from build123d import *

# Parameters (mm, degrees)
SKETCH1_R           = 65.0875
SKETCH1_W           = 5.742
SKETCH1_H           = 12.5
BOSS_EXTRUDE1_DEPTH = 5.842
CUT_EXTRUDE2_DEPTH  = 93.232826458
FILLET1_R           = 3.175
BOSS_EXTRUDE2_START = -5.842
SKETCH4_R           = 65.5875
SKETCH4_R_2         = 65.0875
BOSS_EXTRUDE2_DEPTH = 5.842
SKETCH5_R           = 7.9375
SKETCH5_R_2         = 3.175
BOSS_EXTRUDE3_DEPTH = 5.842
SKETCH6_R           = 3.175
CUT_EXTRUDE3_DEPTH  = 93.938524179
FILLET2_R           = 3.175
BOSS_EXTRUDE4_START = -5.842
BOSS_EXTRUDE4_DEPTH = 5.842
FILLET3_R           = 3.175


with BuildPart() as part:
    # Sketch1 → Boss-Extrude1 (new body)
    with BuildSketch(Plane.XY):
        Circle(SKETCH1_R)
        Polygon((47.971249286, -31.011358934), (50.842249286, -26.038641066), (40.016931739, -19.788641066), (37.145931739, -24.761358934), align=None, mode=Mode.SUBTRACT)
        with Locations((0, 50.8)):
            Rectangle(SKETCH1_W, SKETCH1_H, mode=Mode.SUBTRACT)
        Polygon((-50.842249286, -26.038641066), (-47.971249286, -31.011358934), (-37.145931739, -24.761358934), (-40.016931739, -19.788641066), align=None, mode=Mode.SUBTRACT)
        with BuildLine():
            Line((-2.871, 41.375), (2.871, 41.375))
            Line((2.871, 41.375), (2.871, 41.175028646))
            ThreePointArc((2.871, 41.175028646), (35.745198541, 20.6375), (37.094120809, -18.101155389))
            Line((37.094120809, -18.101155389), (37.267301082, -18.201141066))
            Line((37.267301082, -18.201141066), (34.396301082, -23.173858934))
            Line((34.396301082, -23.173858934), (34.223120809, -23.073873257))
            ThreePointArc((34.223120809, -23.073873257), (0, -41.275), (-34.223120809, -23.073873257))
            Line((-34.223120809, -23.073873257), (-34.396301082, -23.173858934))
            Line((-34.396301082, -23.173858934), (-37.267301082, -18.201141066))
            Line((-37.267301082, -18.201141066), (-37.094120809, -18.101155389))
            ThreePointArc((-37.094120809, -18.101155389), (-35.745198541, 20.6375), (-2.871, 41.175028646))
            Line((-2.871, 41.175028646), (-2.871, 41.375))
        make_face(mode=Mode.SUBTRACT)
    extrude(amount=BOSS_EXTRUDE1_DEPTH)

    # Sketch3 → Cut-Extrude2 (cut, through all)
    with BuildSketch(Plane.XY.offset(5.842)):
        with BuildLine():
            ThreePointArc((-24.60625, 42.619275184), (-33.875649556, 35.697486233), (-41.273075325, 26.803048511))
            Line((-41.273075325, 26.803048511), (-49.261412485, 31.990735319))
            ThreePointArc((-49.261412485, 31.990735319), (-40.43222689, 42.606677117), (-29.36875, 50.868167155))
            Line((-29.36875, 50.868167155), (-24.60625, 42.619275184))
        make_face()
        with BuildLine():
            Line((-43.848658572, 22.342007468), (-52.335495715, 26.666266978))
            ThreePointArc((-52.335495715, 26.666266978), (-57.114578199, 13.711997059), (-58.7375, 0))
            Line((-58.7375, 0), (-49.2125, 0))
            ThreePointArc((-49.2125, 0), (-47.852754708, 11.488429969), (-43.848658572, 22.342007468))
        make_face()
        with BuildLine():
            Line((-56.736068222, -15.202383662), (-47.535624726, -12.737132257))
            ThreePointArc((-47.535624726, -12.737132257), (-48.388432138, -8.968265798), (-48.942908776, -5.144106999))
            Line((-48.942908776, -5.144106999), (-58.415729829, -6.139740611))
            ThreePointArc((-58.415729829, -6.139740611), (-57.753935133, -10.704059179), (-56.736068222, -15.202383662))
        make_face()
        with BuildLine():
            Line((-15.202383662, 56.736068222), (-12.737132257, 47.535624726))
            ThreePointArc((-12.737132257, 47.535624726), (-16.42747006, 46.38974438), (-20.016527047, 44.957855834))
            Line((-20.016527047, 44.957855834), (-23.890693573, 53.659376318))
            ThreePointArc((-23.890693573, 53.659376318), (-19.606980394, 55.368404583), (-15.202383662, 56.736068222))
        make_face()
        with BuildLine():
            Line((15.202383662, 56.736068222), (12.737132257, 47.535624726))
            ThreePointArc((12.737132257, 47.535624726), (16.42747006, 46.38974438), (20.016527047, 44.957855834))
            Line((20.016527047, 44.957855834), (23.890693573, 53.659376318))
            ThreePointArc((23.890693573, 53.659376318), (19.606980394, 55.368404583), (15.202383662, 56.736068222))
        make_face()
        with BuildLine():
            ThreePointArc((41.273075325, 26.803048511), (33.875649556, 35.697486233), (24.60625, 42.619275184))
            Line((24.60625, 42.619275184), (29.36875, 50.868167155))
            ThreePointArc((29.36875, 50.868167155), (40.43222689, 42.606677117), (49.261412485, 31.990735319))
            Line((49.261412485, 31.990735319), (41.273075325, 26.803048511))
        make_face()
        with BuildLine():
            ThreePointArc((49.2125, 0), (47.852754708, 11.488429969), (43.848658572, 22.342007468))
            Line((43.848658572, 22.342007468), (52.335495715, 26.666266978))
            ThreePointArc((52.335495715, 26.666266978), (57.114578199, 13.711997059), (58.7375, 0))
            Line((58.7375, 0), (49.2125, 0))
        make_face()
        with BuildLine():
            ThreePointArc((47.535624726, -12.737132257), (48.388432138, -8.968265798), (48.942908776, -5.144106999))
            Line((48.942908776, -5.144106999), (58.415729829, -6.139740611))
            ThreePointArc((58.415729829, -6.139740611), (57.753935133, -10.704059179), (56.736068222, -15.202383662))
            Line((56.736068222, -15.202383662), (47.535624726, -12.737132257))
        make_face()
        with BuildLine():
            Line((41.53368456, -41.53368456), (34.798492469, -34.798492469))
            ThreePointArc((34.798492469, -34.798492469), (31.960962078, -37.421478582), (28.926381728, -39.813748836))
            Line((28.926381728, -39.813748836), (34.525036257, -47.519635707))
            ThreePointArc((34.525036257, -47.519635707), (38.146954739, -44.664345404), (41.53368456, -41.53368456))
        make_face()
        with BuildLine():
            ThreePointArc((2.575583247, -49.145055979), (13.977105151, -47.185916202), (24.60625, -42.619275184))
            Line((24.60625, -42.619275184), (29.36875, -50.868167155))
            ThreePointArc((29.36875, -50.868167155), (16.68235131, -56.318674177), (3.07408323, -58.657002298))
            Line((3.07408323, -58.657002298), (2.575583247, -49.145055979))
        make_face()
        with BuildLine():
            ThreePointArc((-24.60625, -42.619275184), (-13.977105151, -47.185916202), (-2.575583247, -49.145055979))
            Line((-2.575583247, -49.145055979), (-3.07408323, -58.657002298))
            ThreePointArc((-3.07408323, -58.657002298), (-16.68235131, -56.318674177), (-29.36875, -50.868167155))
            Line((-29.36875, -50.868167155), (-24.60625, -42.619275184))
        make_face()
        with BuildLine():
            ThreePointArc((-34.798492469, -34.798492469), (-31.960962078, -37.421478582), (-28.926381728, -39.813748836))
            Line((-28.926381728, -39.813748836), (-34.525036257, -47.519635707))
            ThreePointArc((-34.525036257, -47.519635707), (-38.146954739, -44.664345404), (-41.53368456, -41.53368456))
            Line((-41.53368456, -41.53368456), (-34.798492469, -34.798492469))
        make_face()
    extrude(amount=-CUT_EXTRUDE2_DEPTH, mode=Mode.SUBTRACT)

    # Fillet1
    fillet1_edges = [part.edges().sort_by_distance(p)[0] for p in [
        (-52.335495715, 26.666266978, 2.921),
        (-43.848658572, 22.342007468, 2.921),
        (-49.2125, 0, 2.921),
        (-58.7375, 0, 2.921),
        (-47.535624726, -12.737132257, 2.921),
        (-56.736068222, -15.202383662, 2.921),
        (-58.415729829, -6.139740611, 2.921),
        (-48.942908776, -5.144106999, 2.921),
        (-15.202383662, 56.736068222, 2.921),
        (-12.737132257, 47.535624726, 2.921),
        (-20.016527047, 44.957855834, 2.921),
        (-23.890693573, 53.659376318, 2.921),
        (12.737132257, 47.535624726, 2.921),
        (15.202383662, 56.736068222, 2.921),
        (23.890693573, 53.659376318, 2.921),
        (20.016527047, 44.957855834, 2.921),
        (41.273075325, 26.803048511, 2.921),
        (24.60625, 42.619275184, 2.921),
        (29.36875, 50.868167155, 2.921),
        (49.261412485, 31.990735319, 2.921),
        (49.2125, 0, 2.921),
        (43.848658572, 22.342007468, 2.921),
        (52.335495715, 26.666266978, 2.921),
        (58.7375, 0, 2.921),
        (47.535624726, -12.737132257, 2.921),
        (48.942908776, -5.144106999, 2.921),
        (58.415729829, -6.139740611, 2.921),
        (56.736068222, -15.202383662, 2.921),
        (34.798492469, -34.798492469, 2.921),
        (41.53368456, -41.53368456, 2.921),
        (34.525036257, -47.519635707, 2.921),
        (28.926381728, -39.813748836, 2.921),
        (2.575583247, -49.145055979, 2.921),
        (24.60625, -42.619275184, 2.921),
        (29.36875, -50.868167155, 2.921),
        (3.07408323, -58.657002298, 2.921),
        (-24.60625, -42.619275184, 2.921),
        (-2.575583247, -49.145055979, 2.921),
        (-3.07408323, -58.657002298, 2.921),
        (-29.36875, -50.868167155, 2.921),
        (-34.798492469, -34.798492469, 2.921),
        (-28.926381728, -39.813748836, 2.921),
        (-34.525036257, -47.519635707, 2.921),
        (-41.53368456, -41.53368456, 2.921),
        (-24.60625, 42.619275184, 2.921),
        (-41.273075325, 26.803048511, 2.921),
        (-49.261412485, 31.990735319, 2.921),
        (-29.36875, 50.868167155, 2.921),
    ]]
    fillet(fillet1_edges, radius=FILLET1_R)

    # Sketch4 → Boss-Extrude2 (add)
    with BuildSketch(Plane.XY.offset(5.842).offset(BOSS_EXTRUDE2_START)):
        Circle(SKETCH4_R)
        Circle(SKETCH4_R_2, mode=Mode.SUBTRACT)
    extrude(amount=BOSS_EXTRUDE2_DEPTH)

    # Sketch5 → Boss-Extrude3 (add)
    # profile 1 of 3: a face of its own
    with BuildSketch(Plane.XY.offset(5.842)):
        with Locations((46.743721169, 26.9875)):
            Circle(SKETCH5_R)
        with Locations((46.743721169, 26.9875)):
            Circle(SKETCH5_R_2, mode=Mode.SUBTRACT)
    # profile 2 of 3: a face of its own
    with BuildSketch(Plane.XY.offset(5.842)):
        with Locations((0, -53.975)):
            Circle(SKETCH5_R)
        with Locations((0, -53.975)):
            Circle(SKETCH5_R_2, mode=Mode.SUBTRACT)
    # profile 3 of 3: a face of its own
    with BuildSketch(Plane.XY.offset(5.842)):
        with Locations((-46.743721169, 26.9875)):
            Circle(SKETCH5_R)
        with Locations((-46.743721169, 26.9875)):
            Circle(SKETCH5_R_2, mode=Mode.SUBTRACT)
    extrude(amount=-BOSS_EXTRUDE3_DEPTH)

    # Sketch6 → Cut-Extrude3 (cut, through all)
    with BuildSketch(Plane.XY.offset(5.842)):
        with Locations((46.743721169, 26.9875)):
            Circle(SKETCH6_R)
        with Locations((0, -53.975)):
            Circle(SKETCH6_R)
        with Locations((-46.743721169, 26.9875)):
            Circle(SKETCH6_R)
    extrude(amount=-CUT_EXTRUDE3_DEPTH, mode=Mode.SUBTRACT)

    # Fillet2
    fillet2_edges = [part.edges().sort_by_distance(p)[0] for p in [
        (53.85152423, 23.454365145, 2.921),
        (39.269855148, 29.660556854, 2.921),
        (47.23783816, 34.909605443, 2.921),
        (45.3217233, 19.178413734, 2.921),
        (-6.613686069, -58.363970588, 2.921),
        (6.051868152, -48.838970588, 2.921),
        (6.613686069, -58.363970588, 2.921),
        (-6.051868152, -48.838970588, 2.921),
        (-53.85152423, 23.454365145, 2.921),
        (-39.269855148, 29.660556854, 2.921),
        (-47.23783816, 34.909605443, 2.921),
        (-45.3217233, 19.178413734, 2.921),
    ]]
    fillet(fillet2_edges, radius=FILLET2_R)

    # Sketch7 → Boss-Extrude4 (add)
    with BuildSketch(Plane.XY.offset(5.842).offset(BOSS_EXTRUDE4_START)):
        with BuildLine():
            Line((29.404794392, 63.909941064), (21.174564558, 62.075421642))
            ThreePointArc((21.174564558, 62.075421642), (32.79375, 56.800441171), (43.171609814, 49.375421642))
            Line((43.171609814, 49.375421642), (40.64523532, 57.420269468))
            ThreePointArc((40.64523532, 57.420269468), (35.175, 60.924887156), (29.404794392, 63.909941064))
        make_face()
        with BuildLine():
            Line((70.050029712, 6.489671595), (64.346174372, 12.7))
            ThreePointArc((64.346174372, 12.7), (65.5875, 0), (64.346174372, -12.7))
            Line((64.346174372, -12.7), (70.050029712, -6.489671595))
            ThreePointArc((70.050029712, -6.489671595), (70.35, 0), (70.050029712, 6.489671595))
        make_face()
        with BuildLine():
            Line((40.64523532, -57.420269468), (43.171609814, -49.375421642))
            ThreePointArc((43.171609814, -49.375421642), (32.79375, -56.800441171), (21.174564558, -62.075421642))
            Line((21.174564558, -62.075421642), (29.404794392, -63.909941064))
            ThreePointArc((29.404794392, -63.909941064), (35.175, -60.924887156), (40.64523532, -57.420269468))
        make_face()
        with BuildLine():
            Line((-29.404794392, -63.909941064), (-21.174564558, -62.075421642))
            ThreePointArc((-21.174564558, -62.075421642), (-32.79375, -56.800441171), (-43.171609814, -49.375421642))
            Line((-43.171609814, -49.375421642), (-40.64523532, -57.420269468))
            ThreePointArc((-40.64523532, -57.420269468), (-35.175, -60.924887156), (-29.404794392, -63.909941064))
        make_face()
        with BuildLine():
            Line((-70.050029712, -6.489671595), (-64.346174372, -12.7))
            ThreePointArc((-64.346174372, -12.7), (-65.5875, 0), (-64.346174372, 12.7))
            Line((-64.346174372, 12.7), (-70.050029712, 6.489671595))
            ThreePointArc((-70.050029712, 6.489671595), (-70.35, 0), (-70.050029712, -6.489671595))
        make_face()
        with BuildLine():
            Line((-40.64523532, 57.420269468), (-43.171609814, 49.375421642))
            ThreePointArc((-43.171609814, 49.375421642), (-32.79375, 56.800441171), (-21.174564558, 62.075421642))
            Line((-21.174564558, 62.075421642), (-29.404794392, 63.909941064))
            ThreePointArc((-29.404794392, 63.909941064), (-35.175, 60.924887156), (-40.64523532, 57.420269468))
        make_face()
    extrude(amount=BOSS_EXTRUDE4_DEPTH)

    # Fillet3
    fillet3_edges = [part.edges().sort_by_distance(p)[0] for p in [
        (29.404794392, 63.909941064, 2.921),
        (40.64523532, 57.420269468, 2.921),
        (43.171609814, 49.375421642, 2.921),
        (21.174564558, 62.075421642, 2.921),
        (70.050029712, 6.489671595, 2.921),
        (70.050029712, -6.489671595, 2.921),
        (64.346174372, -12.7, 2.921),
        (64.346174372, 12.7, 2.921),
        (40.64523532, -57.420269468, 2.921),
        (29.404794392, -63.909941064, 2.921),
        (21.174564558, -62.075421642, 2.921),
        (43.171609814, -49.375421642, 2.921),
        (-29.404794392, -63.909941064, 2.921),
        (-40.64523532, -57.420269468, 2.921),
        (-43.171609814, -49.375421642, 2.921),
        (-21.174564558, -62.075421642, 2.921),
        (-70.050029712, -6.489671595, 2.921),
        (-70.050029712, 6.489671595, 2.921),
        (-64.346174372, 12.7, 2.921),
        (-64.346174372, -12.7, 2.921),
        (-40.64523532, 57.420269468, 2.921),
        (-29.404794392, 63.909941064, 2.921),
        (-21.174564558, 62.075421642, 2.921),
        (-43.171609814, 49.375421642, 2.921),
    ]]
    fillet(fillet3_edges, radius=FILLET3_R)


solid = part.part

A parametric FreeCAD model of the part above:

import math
import FreeCAD as App
import Part
import Sketcher
Q = App.Units.Quantity


def edges_at(feature, points):
    """Names of the edges that pass closest to the given points."""
    edges = feature.Shape.Edges
    near = lambda p: min(range(len(edges)), key=lambda i: edges[i].distToShape(Part.Vertex(*p))[0])
    return sorted({f"Edge{near(p) + 1}" for p in points})


def add_polygon(sketch, points):
    """Adds a closed chain of lines whose ends are joined by coincident constraints."""
    first, n = sketch.GeometryCount, len(points)
    for a, b in zip(points, points[1:] + points[:1]):
        sketch.addGeometry(Part.LineSegment(App.Vector(*a, 0), App.Vector(*b, 0)), False)
    for i in range(n):
        sketch.addConstraint(Sketcher.Constraint("Coincident", first + i, 2, first + (i + 1) % n, 1))

doc = App.newDocument("Part")
body = doc.addObject("PartDesign::Body", "Body")

sketch1 = body.newObject("Sketcher::SketchObject", "Sketch")
sketch1.AttachmentSupport = (doc.getObject("XY_Plane"), [""])
sketch1.MapMode = "FlatFace"
sketch1.addGeometry(Part.Circle(App.Vector(0, 0, 0), App.Vector(0, 0, 1), 65.09), False)
add_polygon(sketch1, [(-47.97, -31.01), (-50.84, -26.04), (-40.02, -19.79), (-37.15, -24.76)])
add_polygon(sketch1, [(50.84, -26.04), (47.97, -31.01), (37.15, -24.76), (40.02, -19.79)])
sketch1.addGeometry(Part.LineSegment(App.Vector(-2.87, 41.18, 0), App.Vector(-2.87, 41.38, 0)), False)
sketch1.addGeometry(Part.LineSegment(App.Vector(-2.87, 41.38, 0), App.Vector(2.87, 41.38, 0)), False)
sketch1.addGeometry(Part.LineSegment(App.Vector(2.87, 41.38, 0), App.Vector(2.87, 41.18, 0)), False)
sketch1.addGeometry(Part.ArcOfCircle(Part.Circle(App.Vector(0, 0, 0), App.Vector(0, 0, 1), 41.27), math.radians(-26), math.radians(86)), False)
sketch1.addGeometry(Part.LineSegment(App.Vector(37.09, -18.1, 0), App.Vector(37.27, -18.2, 0)), False)
sketch1.addGeometry(Part.LineSegment(App.Vector(37.27, -18.2, 0), App.Vector(34.4, -23.17, 0)), False)
sketch1.addGeometry(Part.LineSegment(App.Vector(34.4, -23.17, 0), App.Vector(34.22, -23.07, 0)), False)
sketch1.addGeometry(Part.ArcOfCircle(Part.Circle(App.Vector(0, 0, 0), App.Vector(0, 0, 1), 41.27), math.radians(-146), math.radians(-34)), False)
sketch1.addGeometry(Part.LineSegment(App.Vector(-34.22, -23.07, 0), App.Vector(-34.4, -23.17, 0)), False)
sketch1.addGeometry(Part.LineSegment(App.Vector(-34.4, -23.17, 0), App.Vector(-37.27, -18.2, 0)), False)
sketch1.addGeometry(Part.LineSegment(App.Vector(-37.27, -18.2, 0), App.Vector(-37.09, -18.1, 0)), False)
sketch1.addGeometry(Part.ArcOfCircle(Part.Circle(App.Vector(0, 0, 0), App.Vector(0, 0, 1), 41.27), math.radians(94), math.radians(206)), False)
add_polygon(sketch1, [(2.87, 44.55), (-2.87, 44.55), (-2.87, 57.05), (2.87, 57.05)])
sketch1.addConstraint([
    Sketcher.Constraint("Coincident", 9, 2, 10, 1),
    Sketcher.Constraint("Coincident", 10, 2, 11, 1),
    Sketcher.Constraint("Coincident", 11, 2, 12, 2),
    Sketcher.Constraint("Coincident", 12, 1, 13, 1),
    Sketcher.Constraint("Coincident", 13, 2, 14, 1),
    Sketcher.Constraint("Coincident", 14, 2, 15, 1),
    Sketcher.Constraint("Coincident", 15, 2, 16, 2),
    Sketcher.Constraint("Coincident", 16, 1, 17, 1),
    Sketcher.Constraint("Coincident", 17, 2, 18, 1),
    Sketcher.Constraint("Coincident", 18, 2, 19, 1),
    Sketcher.Constraint("Coincident", 19, 2, 20, 2),
    Sketcher.Constraint("Coincident", 20, 1, 9, 1),
    Sketcher.Constraint("Vertical", 9),
    Sketcher.Constraint("Horizontal", 10),
    Sketcher.Constraint("Vertical", 11),
    Sketcher.Constraint("Horizontal", 21),
    Sketcher.Constraint("Vertical", 22),
    Sketcher.Constraint("Horizontal", 23),
    Sketcher.Constraint("Vertical", 24),
    Sketcher.Constraint("Coincident", 0, 3, -1, 1),
    Sketcher.Constraint("Coincident", 12, 3, -1, 1),
    Sketcher.Constraint("Coincident", 16, 3, -1, 1),
    Sketcher.Constraint("Coincident", 20, 3, -1, 1),
    Sketcher.Constraint("Equal", 12, 16),
    Sketcher.Constraint("Equal", 16, 20),
    Sketcher.Constraint("Symmetric", 4, 2, 5, 2, -2),
    Sketcher.Constraint("Symmetric", 3, 2, 6, 2, -2),
    Sketcher.Constraint("Symmetric", 2, 2, 7, 2, -2),
    Sketcher.Constraint("Symmetric", 1, 2, 8, 2, -2),
    Sketcher.Constraint("Symmetric", 14, 2, 17, 2, -2),
    Sketcher.Constraint("Symmetric", 13, 2, 18, 2, -2),
    Sketcher.Constraint("Perpendicular", 1, 2),
    Sketcher.Constraint("Perpendicular", 2, 3),
    Sketcher.Constraint("Perpendicular", 3, 4),
    Sketcher.Constraint("Parallel", 8, 13),
    Sketcher.Constraint("Perpendicular", 13, 14),
    Sketcher.Constraint("Perpendicular", 14, 15),
    Sketcher.Constraint("Parallel", 4, 17),
    Sketcher.Constraint("Perpendicular", 18, 19),
    Sketcher.Constraint("Horizontal", 11, 2, 20, 1),
    Sketcher.Constraint("Vertical", 20, 1, 21, 2),
    Sketcher.Constraint("Vertical", 11, 2, 23, 2),
    Sketcher.Constraint("Equal", 7, 14),
    Sketcher.Constraint("Equal", 13, 15),
    Sketcher.Constraint("Diameter", 0, Q("5.125 in")),
    Sketcher.Constraint("Angle", 1, Q("120 deg")),
    Sketcher.Constraint("Radius", 12, Q("1.625 in")),
    Sketcher.Constraint("DistanceY", 7, 2, 13, 2, Q("0.0625 in")),
    Sketcher.Constraint("DistanceY", 9, 2, 21, 2, Q("0.125 in")),
    Sketcher.Constraint("DistanceX", 10, 1, 10, 2, 5.742),
    Sketcher.Constraint("DistanceY", 22, 1, 22, 2, 12.5),
    Sketcher.Constraint("Distance", 1, 5.742),
    Sketcher.Constraint("Distance", 2, 12.5),
    Sketcher.Constraint("DistanceY", 9, 1, 9, 2, 0.199971),
    Sketcher.Constraint("DistanceX", -1, 1, 13, 2, 37.267301),
    Sketcher.Constraint("DistanceX", 1, 2, -1, 1, 50.842249),
])
pad1 = body.newObject("PartDesign::Pad", "Pad")
pad1.Profile = sketch1
pad1.Length = Q("0.23 in")

sketch2 = body.newObject("Sketcher::SketchObject", "Sketch001")
sketch2.AttachmentSupport = (doc.getObject("XY_Plane"), [""])
sketch2.MapMode = "FlatFace"
sketch2.AttachmentOffset = App.Placement(App.Vector(0, 0, 0.23 * 25.4), App.Rotation())
sketch2.addGeometry([
    Part.ArcOfCircle(Part.Circle(App.Vector(0, 0, 0), App.Vector(0, 0, 1), 49), math.radians(120), math.radians(147)),
    Part.LineSegment(App.Vector(-25, 43, 0), App.Vector(-29, 51, 0)),
    Part.ArcOfCircle(Part.Circle(App.Vector(0, 0, 0), App.Vector(0, 0, 1), 59), math.radians(120), math.radians(147)),
    Part.LineSegment(App.Vector(-49, 32, 0), App.Vector(-41, 27, 0)),
    Part.LineSegment(App.Vector(-44, 22, 0), App.Vector(-52, 27, 0)),
    Part.ArcOfCircle(Part.Circle(App.Vector(0, 0, 0), App.Vector(0, 0, 1), 59), math.radians(153), math.radians(180)),
    Part.LineSegment(App.Vector(-59, 0, 0), App.Vector(-49, 0, 0)),
    Part.ArcOfCircle(Part.Circle(App.Vector(0, 0, 0), App.Vector(0, 0, 1), 49), math.radians(153), math.radians(180)),
    Part.LineSegment(App.Vector(-57, -15, 0), App.Vector(-48, -13, 0)),
    Part.ArcOfCircle(Part.Circle(App.Vector(0, 0, 0), App.Vector(0, 0, 1), 49), math.radians(-174), math.radians(-165)),
    Part.LineSegment(App.Vector(-49, -5, 0), App.Vector(-58, -6, 0)),
    Part.ArcOfCircle(Part.Circle(App.Vector(0, 0, 0), App.Vector(0, 0, 1), 59), math.radians(-174), math.radians(-165)),
    Part.LineSegment(App.Vector(-13, 48, 0), App.Vector(-15, 57, 0)),
    Part.ArcOfCircle(Part.Circle(App.Vector(0, 0, 0), App.Vector(0, 0, 1), 59), math.radians(105), math.radians(114)),
    Part.LineSegment(App.Vector(-24, 54, 0), App.Vector(-20, 45, 0)),
    Part.ArcOfCircle(Part.Circle(App.Vector(0, 0, 0), App.Vector(0, 0, 1), 49), math.radians(105), math.radians(114)),
    Part.LineSegment(App.Vector(15, 57, 0), App.Vector(13, 48, 0)),
    Part.ArcOfCircle(Part.Circle(App.Vector(0, 0, 0), App.Vector(0, 0, 1), 49), math.radians(66), math.radians(75)),
    Part.LineSegment(App.Vector(20, 45, 0), App.Vector(24, 54, 0)),
    Part.ArcOfCircle(Part.Circle(App.Vector(0, 0, 0), App.Vector(0, 0, 1), 59), math.radians(66), math.radians(75)),
    Part.ArcOfCircle(Part.Circle(App.Vector(0, 0, 0), App.Vector(0, 0, 1), 49), math.radians(33), math.radians(60)),
    Part.LineSegment(App.Vector(41, 27, 0), App.Vector(49, 32, 0)),
    Part.ArcOfCircle(Part.Circle(App.Vector(0, 0, 0), App.Vector(0, 0, 1), 59), math.radians(33), math.radians(60)),
    Part.LineSegment(App.Vector(29, 51, 0), App.Vector(25, 43, 0)),
    Part.ArcOfCircle(Part.Circle(App.Vector(0, 0, 0), App.Vector(0, 0, 1), 49), math.radians(0), math.radians(27)),
    Part.LineSegment(App.Vector(49, 0, 0), App.Vector(59, 0, 0)),
    Part.ArcOfCircle(Part.Circle(App.Vector(0, 0, 0), App.Vector(0, 0, 1), 59), math.radians(0), math.radians(27)),
    Part.LineSegment(App.Vector(52, 27, 0), App.Vector(44, 22, 0)),
    Part.ArcOfCircle(Part.Circle(App.Vector(0, 0, 0), App.Vector(0, 0, 1), 49), math.radians(-15), math.radians(-6)),
    Part.LineSegment(App.Vector(48, -13, 0), App.Vector(57, -15, 0)),
    Part.ArcOfCircle(Part.Circle(App.Vector(0, 0, 0), App.Vector(0, 0, 1), 59), math.radians(-15), math.radians(-6)),
    Part.LineSegment(App.Vector(58, -6, 0), App.Vector(49, -5, 0)),
    Part.LineSegment(App.Vector(42, -42, 0), App.Vector(35, -35, 0)),
    Part.ArcOfCircle(Part.Circle(App.Vector(0, 0, 0), App.Vector(0, 0, 1), 49), math.radians(-54), math.radians(-45)),
    Part.LineSegment(App.Vector(29, -40, 0), App.Vector(35, -48, 0)),
    Part.ArcOfCircle(Part.Circle(App.Vector(0, 0, 0), App.Vector(0, 0, 1), 59), math.radians(-54), math.radians(-45)),
    Part.ArcOfCircle(Part.Circle(App.Vector(0, 0, 0), App.Vector(0, 0, 1), 49), math.radians(-87), math.radians(-60)),
    Part.LineSegment(App.Vector(3, -49, 0), App.Vector(3, -59, 0)),
    Part.ArcOfCircle(Part.Circle(App.Vector(0, 0, 0), App.Vector(0, 0, 1), 59), math.radians(-87), math.radians(-60)),
    Part.LineSegment(App.Vector(29, -51, 0), App.Vector(25, -43, 0)),
    Part.ArcOfCircle(Part.Circle(App.Vector(0, 0, 0), App.Vector(0, 0, 1), 49), math.radians(-120), math.radians(-93)),
    Part.LineSegment(App.Vector(-25, -43, 0), App.Vector(-29, -51, 0)),
    Part.ArcOfCircle(Part.Circle(App.Vector(0, 0, 0), App.Vector(0, 0, 1), 59), math.radians(-120), math.radians(-93)),
    Part.LineSegment(App.Vector(-3, -59, 0), App.Vector(-3, -49, 0)),
    Part.ArcOfCircle(Part.Circle(App.Vector(0, 0, 0), App.Vector(0, 0, 1), 49), math.radians(-135), math.radians(-126)),
    Part.LineSegment(App.Vector(-35, -35, 0), App.Vector(-42, -42, 0)),
    Part.ArcOfCircle(Part.Circle(App.Vector(0, 0, 0), App.Vector(0, 0, 1), 59), math.radians(-135), math.radians(-126)),
    Part.LineSegment(App.Vector(-35, -48, 0), App.Vector(-29, -40, 0)),
], False)
sketch2.addConstraint([
    Sketcher.Constraint("Coincident", 0, 1, 1, 1),
    Sketcher.Constraint("Coincident", 1, 2, 2, 1),
    Sketcher.Constraint("Coincident", 2, 2, 3, 1),
    Sketcher.Constraint("Coincident", 3, 2, 0, 2),
    Sketcher.Constraint("Coincident", 4, 2, 5, 1),
    Sketcher.Constraint("Coincident", 5, 2, 6, 1),
    Sketcher.Constraint("Coincident", 6, 2, 7, 2),
    Sketcher.Constraint("Coincident", 7, 1, 4, 1),
    Sketcher.Constraint("Coincident", 8, 2, 9, 2),
    Sketcher.Constraint("Coincident", 9, 1, 10, 1),
    Sketcher.Constraint("Coincident", 10, 2, 11, 1),
    Sketcher.Constraint("Coincident", 11, 2, 8, 1),
    Sketcher.Constraint("Coincident", 12, 2, 13, 1),
    Sketcher.Constraint("Coincident", 13, 2, 14, 1),
    Sketcher.Constraint("Coincident", 14, 2, 15, 2),
    Sketcher.Constraint("Coincident", 15, 1, 12, 1),
    Sketcher.Constraint("Coincident", 16, 2, 17, 2),
    Sketcher.Constraint("Coincident", 17, 1, 18, 1),
    Sketcher.Constraint("Coincident", 18, 2, 19, 1),
    Sketcher.Constraint("Coincident", 19, 2, 16, 1),
    Sketcher.Constraint("Coincident", 20, 1, 21, 1),
    Sketcher.Constraint("Coincident", 21, 2, 22, 1),
    Sketcher.Constraint("Coincident", 22, 2, 23, 1),
    Sketcher.Constraint("Coincident", 23, 2, 20, 2),
    Sketcher.Constraint("Coincident", 24, 1, 25, 1),
    Sketcher.Constraint("Coincident", 25, 2, 26, 1),
    Sketcher.Constraint("Coincident", 26, 2, 27, 1),
    Sketcher.Constraint("Coincident", 27, 2, 24, 2),
    Sketcher.Constraint("Coincident", 28, 1, 29, 1),
    Sketcher.Constraint("Coincident", 29, 2, 30, 1),
    Sketcher.Constraint("Coincident", 30, 2, 31, 1),
    Sketcher.Constraint("Coincident", 31, 2, 28, 2),
    Sketcher.Constraint("Coincident", 32, 2, 33, 2),
    Sketcher.Constraint("Coincident", 33, 1, 34, 1),
    Sketcher.Constraint("Coincident", 34, 2, 35, 1),
    Sketcher.Constraint("Coincident", 35, 2, 32, 1),
    Sketcher.Constraint("Coincident", 36, 1, 37, 1),
    Sketcher.Constraint("Coincident", 37, 2, 38, 1),
    Sketcher.Constraint("Coincident", 38, 2, 39, 1),
    Sketcher.Constraint("Coincident", 39, 2, 36, 2),
    Sketcher.Constraint("Coincident", 40, 1, 41, 1),
    Sketcher.Constraint("Coincident", 41, 2, 42, 1),
    Sketcher.Constraint("Coincident", 42, 2, 43, 1),
    Sketcher.Constraint("Coincident", 43, 2, 40, 2),
    Sketcher.Constraint("Coincident", 44, 1, 45, 1),
    Sketcher.Constraint("Coincident", 45, 2, 46, 1),
    Sketcher.Constraint("Coincident", 46, 2, 47, 1),
    Sketcher.Constraint("Coincident", 47, 2, 44, 2),
    Sketcher.Constraint("Horizontal", 6),
    Sketcher.Constraint("Horizontal", 25),
    Sketcher.Constraint("Coincident", 0, 3, -1, 1),
    Sketcher.Constraint("Coincident", 2, 3, -1, 1),
    Sketcher.Constraint("Coincident", 5, 3, -1, 1),
    Sketcher.Constraint("Coincident", 7, 3, -1, 1),
    Sketcher.Constraint("Coincident", 9, 3, -1, 1),
    Sketcher.Constraint("Coincident", 11, 3, -1, 1),
    Sketcher.Constraint("Coincident", 13, 3, -1, 1),
    Sketcher.Constraint("Coincident", 15, 3, -1, 1),
    Sketcher.Constraint("Coincident", 17, 3, -1, 1),
    Sketcher.Constraint("Coincident", 19, 3, -1, 1),
    Sketcher.Constraint("Coincident", 20, 3, -1, 1),
    Sketcher.Constraint("Coincident", 22, 3, -1, 1),
    Sketcher.Constraint("Coincident", 24, 3, -1, 1),
    Sketcher.Constraint("Coincident", 26, 3, -1, 1),
    Sketcher.Constraint("Coincident", 28, 3, -1, 1),
    Sketcher.Constraint("Coincident", 30, 3, -1, 1),
    Sketcher.Constraint("Coincident", 33, 3, -1, 1),
    Sketcher.Constraint("Coincident", 35, 3, -1, 1),
    Sketcher.Constraint("Coincident", 36, 3, -1, 1),
    Sketcher.Constraint("Coincident", 38, 3, -1, 1),
    Sketcher.Constraint("Coincident", 40, 3, -1, 1),
    Sketcher.Constraint("Coincident", 42, 3, -1, 1),
    Sketcher.Constraint("Coincident", 44, 3, -1, 1),
    Sketcher.Constraint("Coincident", 46, 3, -1, 1),
    Sketcher.Constraint("Equal", 2, 5),
    Sketcher.Constraint("Equal", 0, 7),
    Sketcher.Constraint("Equal", 7, 9),
    Sketcher.Constraint("Equal", 5, 11),
    Sketcher.Constraint("Equal", 11, 13),
    Sketcher.Constraint("Equal", 9, 15),
    Sketcher.Constraint("Equal", 15, 17),
    Sketcher.Constraint("Equal", 13, 19),
    Sketcher.Constraint("Equal", 17, 20),
    Sketcher.Constraint("Equal", 19, 22),
    Sketcher.Constraint("Equal", 20, 24),
    Sketcher.Constraint("Equal", 22, 26),
    Sketcher.Constraint("Equal", 24, 28),
    Sketcher.Constraint("Equal", 26, 30),
    Sketcher.Constraint("Equal", 28, 33),
    Sketcher.Constraint("Equal", 30, 35),
    Sketcher.Constraint("Equal", 33, 36),
    Sketcher.Constraint("Equal", 35, 38),
    Sketcher.Constraint("Equal", 36, 40),
    Sketcher.Constraint("Equal", 38, 42),
    Sketcher.Constraint("Equal", 40, 44),
    Sketcher.Constraint("Equal", 42, 46),
    Sketcher.Constraint("PointOnObject", 5, 2, -1),
    Sketcher.Constraint("PointOnObject", 24, 1, -1),
    Sketcher.Constraint("Perpendicular", 8, 12),
    Sketcher.Constraint("Perpendicular", 16, 29),
    Sketcher.Constraint("Parallel", 1, 39),
    Sketcher.Constraint("Parallel", 23, 41),
    Sketcher.Constraint("Perpendicular", 32, 45),
    Sketcher.Constraint("Horizontal", 15, 1, 16, 2),
    Sketcher.Constraint("Horizontal", 14, 2, 17, 1),
    Sketcher.Constraint("Horizontal", 13, 2, 18, 2),
    Sketcher.Constraint("Horizontal", 12, 2, 19, 2),
    Sketcher.Constraint("Horizontal", 3, 2, 20, 1),
    Sketcher.Constraint("Horizontal", 2, 2, 21, 2),
    Sketcher.Constraint("Horizontal", 1, 2, 22, 2),
    Sketcher.Constraint("Horizontal", 0, 1, 23, 2),
    Sketcher.Constraint("Horizontal", 4, 2, 26, 2),
    Sketcher.Constraint("Horizontal", 7, 1, 27, 2),
    Sketcher.Constraint("Horizontal", 8, 2, 28, 1),
    Sketcher.Constraint("Horizontal", 10, 2, 30, 2),
    Sketcher.Constraint("Horizontal", 9, 1, 31, 2),
    Sketcher.Constraint("Horizontal", 39, 2, 40, 1),
    Sketcher.Constraint("Horizontal", 37, 2, 42, 2),
    Sketcher.Constraint("Horizontal", 36, 1, 43, 2),
    Sketcher.Constraint("Horizontal", 32, 2, 44, 1),
    Sketcher.Constraint("Horizontal", 35, 2, 45, 2),
    Sketcher.Constraint("Horizontal", 34, 2, 46, 2),
    Sketcher.Constraint("Horizontal", 33, 1, 47, 2),
    Sketcher.Constraint("Vertical", 22, 2, 38, 2),
    Sketcher.Constraint("Angle", 1, Q("120 deg")),
    Sketcher.Constraint("Angle", 3, Q("-33 deg")),
    Sketcher.Constraint("Angle", 4, Q("153 deg")),
    Sketcher.Constraint("Angle", 8, Q("15 deg")),
    Sketcher.Constraint("Angle", 10, Q("-174 deg")),
    Sketcher.Constraint("Angle", 14, Q("-66 deg")),
    Sketcher.Constraint("Angle", 34, Q("-54 deg")),
    Sketcher.Constraint("Angle", 37, Q("-87 deg")),
    Sketcher.Constraint("Radius", 0, Q("1.9375 in")),
    Sketcher.Constraint("Radius", 2, Q("2.3125 in")),
    Sketcher.Constraint("DistanceX", 0, 1, -1, 1, Q("0.96875 in")),
    Sketcher.Constraint("DistanceY", -1, 1, 3, 2, 26.803049),
    Sketcher.Constraint("DistanceX", 7, 1, -1, 1, 43.848659),
    Sketcher.Constraint("DistanceX", 9, 1, -1, 1, 48.942909),
    Sketcher.Constraint("DistanceX", 11, 2, -1, 1, 56.736068),
    Sketcher.Constraint("DistanceY", -1, 1, 12, 2, 56.736068),
    Sketcher.Constraint("DistanceX", -1, 1, 33, 1, 28.926382),
    Sketcher.Constraint("DistanceX", 13, 2, -1, 1, 23.890694),
    Sketcher.Constraint("DistanceX", -1, 1, 32, 2, 34.798492),
    Sketcher.Constraint("DistanceX", -1, 1, 36, 1, 2.575583),
])
pocket1 = body.newObject("PartDesign::Pocket", "Pocket")
pocket1.Profile = sketch2
pocket1.Type = "ThroughAll"
doc.recompute()

fillet = body.newObject("PartDesign::Fillet", "Fillet")
fillet.Base = (pocket1, edges_at(pocket1, [
    (-52.335, 26.666, 2.921),
    (-43.849, 22.342, 2.921),
    (-49.212, 0, 2.921),
    (-58.737, 0, 2.921),
    (-47.536, -12.737, 2.921),
    (-56.736, -15.202, 2.921),
    (-58.416, -6.14, 2.921),
    (-48.943, -5.144, 2.921),
    (-15.202, 56.736, 2.921),
    (-12.737, 47.536, 2.921),
    (-20.017, 44.958, 2.921),
    (-23.891, 53.659, 2.921),
    (12.737, 47.536, 2.921),
    (15.202, 56.736, 2.921),
    (23.891, 53.659, 2.921),
    (20.017, 44.958, 2.921),
    (41.273, 26.803, 2.921),
    (24.606, 42.619, 2.921),
    (29.369, 50.868, 2.921),
    (49.261, 31.991, 2.921),
    (49.212, 0, 2.921),
    (43.849, 22.342, 2.921),
    (52.335, 26.666, 2.921),
    (58.737, 0, 2.921),
    (47.536, -12.737, 2.921),
    (48.943, -5.144, 2.921),
    (58.416, -6.14, 2.921),
    (56.736, -15.202, 2.921),
    (34.798, -34.798, 2.921),
    (41.534, -41.534, 2.921),
    (34.525, -47.52, 2.921),
    (28.926, -39.814, 2.921),
    (2.576, -49.145, 2.921),
    (24.606, -42.619, 2.921),
    (29.369, -50.868, 2.921),
    (3.074, -58.657, 2.921),
    (-24.606, -42.619, 2.921),
    (-2.576, -49.145, 2.921),
    (-3.074, -58.657, 2.921),
    (-29.369, -50.868, 2.921),
    (-34.798, -34.798, 2.921),
    (-28.926, -39.814, 2.921),
    (-34.525, -47.52, 2.921),
    (-41.534, -41.534, 2.921),
    (-24.606, 42.619, 2.921),
    (-41.273, 26.803, 2.921),
    (-49.261, 31.991, 2.921),
    (-29.369, 50.868, 2.921),
]))
fillet.Radius = Q("0.125 in")

sketch3 = body.newObject("Sketcher::SketchObject", "Sketch002")
sketch3.AttachmentSupport = (doc.getObject("XY_Plane"), [""])
sketch3.MapMode = "FlatFace"
sketch3.addGeometry([
    Part.Circle(App.Vector(0, 0, 0), App.Vector(0, 0, 1), 66),
    Part.Circle(App.Vector(0, 0, 0), App.Vector(0, 0, 1), 65),
], False)
sketch3.addConstraint([
    Sketcher.Constraint("Coincident", 0, 3, -1, 1),
    Sketcher.Constraint("Coincident", 1, 3, -1, 1),
    Sketcher.Constraint("Diameter", 1, Q("5.125 in")),
    Sketcher.Constraint("Diameter", 0, 131.175),
])
pad2 = body.newObject("PartDesign::Pad", "Pad001")
pad2.Profile = sketch3
pad2.Length = Q("0.23 in")

sketch4 = body.newObject("Sketcher::SketchObject", "Sketch003")
sketch4.AttachmentSupport = (doc.getObject("XY_Plane"), [""])
sketch4.MapMode = "FlatFace"
sketch4.AttachmentOffset = App.Placement(App.Vector(0, 0, 0.23 * 25.4), App.Rotation())
sketch4.addGeometry([
    Part.Circle(App.Vector(46.7, 27, 0), App.Vector(0, 0, 1), 7.9),
    Part.Circle(App.Vector(46.7, 27, 0), App.Vector(0, 0, 1), 3.2),
    Part.Circle(App.Vector(0, -54, 0), App.Vector(0, 0, 1), 7.9),
    Part.Circle(App.Vector(0, -54, 0), App.Vector(0, 0, 1), 3.2),
    Part.Circle(App.Vector(-46.7, 27, 0), App.Vector(0, 0, 1), 7.9),
    Part.Circle(App.Vector(-46.7, 27, 0), App.Vector(0, 0, 1), 3.2),
], False)
sketch4.addConstraint([
    Sketcher.Constraint("Coincident", 1, 3, 0, 3),
    Sketcher.Constraint("Coincident", 3, 3, 2, 3),
    Sketcher.Constraint("Coincident", 5, 3, 4, 3),
    Sketcher.Constraint("Equal", 0, 2),
    Sketcher.Constraint("Equal", 1, 3),
    Sketcher.Constraint("Equal", 2, 4),
    Sketcher.Constraint("Equal", 3, 5),
    Sketcher.Constraint("Symmetric", 0, 3, 4, 3, -2),
    Sketcher.Constraint("PointOnObject", 2, 3, -2),
    Sketcher.Constraint("Diameter", 1, Q("0.25 in")),
    Sketcher.Constraint("Diameter", 0, Q("0.625 in")),
    Sketcher.Constraint("DistanceY", -1, 1, 0, 3, Q("1.0625 in")),
    Sketcher.Constraint("DistanceY", 2, 3, -1, 1, Q("2.125 in")),
    Sketcher.Constraint("DistanceX", -1, 1, 0, 3, 46.743721),
])
pad3 = body.newObject("PartDesign::Pad", "Pad002")
pad3.Profile = sketch4
pad3.Length = Q("0.23 in")
pad3.Reversed = True

sketch5 = body.newObject("Sketcher::SketchObject", "Sketch004")
sketch5.AttachmentSupport = (doc.getObject("XY_Plane"), [""])
sketch5.MapMode = "FlatFace"
sketch5.AttachmentOffset = App.Placement(App.Vector(0, 0, 0.23 * 25.4), App.Rotation())
sketch5.addGeometry([
    Part.Circle(App.Vector(46.7, 27, 0), App.Vector(0, 0, 1), 3.2),
    Part.Circle(App.Vector(0, -54, 0), App.Vector(0, 0, 1), 3.2),
    Part.Circle(App.Vector(-46.7, 27, 0), App.Vector(0, 0, 1), 3.2),
], False)
sketch5.addConstraint([
    Sketcher.Constraint("Equal", 0, 1),
    Sketcher.Constraint("Equal", 1, 2),
    Sketcher.Constraint("Symmetric", 0, 3, 2, 3, -2),
    Sketcher.Constraint("PointOnObject", 1, 3, -2),
    Sketcher.Constraint("Diameter", 0, Q("0.25 in")),
    Sketcher.Constraint("DistanceY", -1, 1, 0, 3, Q("1.0625 in")),
    Sketcher.Constraint("DistanceY", 1, 3, -1, 1, Q("2.125 in")),
    Sketcher.Constraint("DistanceX", -1, 1, 0, 3, 46.743721),
])
pocket2 = body.newObject("PartDesign::Pocket", "Pocket001")
pocket2.Profile = sketch5
pocket2.Type = "ThroughAll"
doc.recompute()

fillet2 = body.newObject("PartDesign::Fillet", "Fillet001")
fillet2.Base = (pocket2, edges_at(pocket2, [
    (53.852, 23.454, 2.921),
    (39.27, 29.661, 2.921),
    (47.238, 34.91, 2.921),
    (45.322, 19.178, 2.921),
    (-6.614, -58.364, 2.921),
    (6.052, -48.839, 2.921),
    (6.614, -58.364, 2.921),
    (-6.052, -48.839, 2.921),
    (-53.852, 23.454, 2.921),
    (-39.27, 29.661, 2.921),
    (-47.238, 34.91, 2.921),
    (-45.322, 19.178, 2.921),
]))
fillet2.Radius = Q("0.125 in")

sketch6 = body.newObject("Sketcher::SketchObject", "Sketch005")
sketch6.AttachmentSupport = (doc.getObject("XY_Plane"), [""])
sketch6.MapMode = "FlatFace"
sketch6.addGeometry([
    Part.LineSegment(App.Vector(29, 64, 0), App.Vector(21, 62, 0)),
    Part.ArcOfCircle(Part.Circle(App.Vector(0, 0, 0), App.Vector(0, 0, 1), 66), math.radians(49), math.radians(71)),
    Part.LineSegment(App.Vector(43, 49, 0), App.Vector(41, 57, 0)),
    Part.ArcOfCircle(Part.Circle(App.Vector(0, 0, 0), App.Vector(0, 0, 1), 70), math.radians(54.71), math.radians(65.29)),
    Part.LineSegment(App.Vector(70, 6, 0), App.Vector(64, 13, 0)),
    Part.ArcOfCircle(Part.Circle(App.Vector(0, 0, 0), App.Vector(0, 0, 1), 66), math.radians(-11), math.radians(11)),
    Part.LineSegment(App.Vector(64, -13, 0), App.Vector(70, -6, 0)),
    Part.ArcOfCircle(Part.Circle(App.Vector(0, 0, 0), App.Vector(0, 0, 1), 70), math.radians(-5.29), math.radians(5.29)),
    Part.LineSegment(App.Vector(41, -57, 0), App.Vector(43, -49, 0)),
    Part.ArcOfCircle(Part.Circle(App.Vector(0, 0, 0), App.Vector(0, 0, 1), 66), math.radians(-71), math.radians(-49)),
    Part.LineSegment(App.Vector(21, -62, 0), App.Vector(29, -64, 0)),
    Part.ArcOfCircle(Part.Circle(App.Vector(0, 0, 0), App.Vector(0, 0, 1), 70), math.radians(-65.29), math.radians(-54.71)),
    Part.LineSegment(App.Vector(-29, -64, 0), App.Vector(-21, -62, 0)),
    Part.ArcOfCircle(Part.Circle(App.Vector(0, 0, 0), App.Vector(0, 0, 1), 66), math.radians(-131), math.radians(-109)),
    Part.LineSegment(App.Vector(-43, -49, 0), App.Vector(-41, -57, 0)),
    Part.ArcOfCircle(Part.Circle(App.Vector(0, 0, 0), App.Vector(0, 0, 1), 70), math.radians(-125.29), math.radians(-114.71)),
    Part.LineSegment(App.Vector(-70, -6, 0), App.Vector(-64, -13, 0)),
    Part.ArcOfCircle(Part.Circle(App.Vector(0, 0, 0), App.Vector(0, 0, 1), 66), math.radians(169), math.radians(191)),
    Part.LineSegment(App.Vector(-64, 13, 0), App.Vector(-70, 6, 0)),
    Part.ArcOfCircle(Part.Circle(App.Vector(0, 0, 0), App.Vector(0, 0, 1), 70), math.radians(174.71), math.radians(185.29)),
    Part.LineSegment(App.Vector(-41, 57, 0), App.Vector(-43, 49, 0)),
    Part.ArcOfCircle(Part.Circle(App.Vector(0, 0, 0), App.Vector(0, 0, 1), 66), math.radians(109), math.radians(131)),
    Part.LineSegment(App.Vector(-21, 62, 0), App.Vector(-29, 64, 0)),
    Part.ArcOfCircle(Part.Circle(App.Vector(0, 0, 0), App.Vector(0, 0, 1), 70), math.radians(114.71), math.radians(125.29)),
], False)
sketch6.addConstraint([
    Sketcher.Constraint("Coincident", 0, 2, 1, 2),
    Sketcher.Constraint("Coincident", 1, 1, 2, 1),
    Sketcher.Constraint("Coincident", 2, 2, 3, 1),
    Sketcher.Constraint("Coincident", 3, 2, 0, 1),
    Sketcher.Constraint("Coincident", 4, 2, 5, 2),
    Sketcher.Constraint("Coincident", 5, 1, 6, 1),
    Sketcher.Constraint("Coincident", 6, 2, 7, 1),
    Sketcher.Constraint("Coincident", 7, 2, 4, 1),
    Sketcher.Constraint("Coincident", 8, 2, 9, 2),
    Sketcher.Constraint("Coincident", 9, 1, 10, 1),
    Sketcher.Constraint("Coincident", 10, 2, 11, 1),
    Sketcher.Constraint("Coincident", 11, 2, 8, 1),
    Sketcher.Constraint("Coincident", 12, 2, 13, 2),
    Sketcher.Constraint("Coincident", 13, 1, 14, 1),
    Sketcher.Constraint("Coincident", 14, 2, 15, 1),
    Sketcher.Constraint("Coincident", 15, 2, 12, 1),
    Sketcher.Constraint("Coincident", 16, 2, 17, 2),
    Sketcher.Constraint("Coincident", 17, 1, 18, 1),
    Sketcher.Constraint("Coincident", 18, 2, 19, 1),
    Sketcher.Constraint("Coincident", 19, 2, 16, 1),
    Sketcher.Constraint("Coincident", 20, 2, 21, 2),
    Sketcher.Constraint("Coincident", 21, 1, 22, 1),
    Sketcher.Constraint("Coincident", 22, 2, 23, 1),
    Sketcher.Constraint("Coincident", 23, 2, 20, 1),
    Sketcher.Constraint("Coincident", 1, 3, -1, 1),
    Sketcher.Constraint("Coincident", 3, 3, -1, 1),
    Sketcher.Constraint("Coincident", 5, 3, -1, 1),
    Sketcher.Constraint("Coincident", 7, 3, -1, 1),
    Sketcher.Constraint("Coincident", 9, 3, -1, 1),
    Sketcher.Constraint("Coincident", 11, 3, -1, 1),
    Sketcher.Constraint("Coincident", 13, 3, -1, 1),
    Sketcher.Constraint("Coincident", 15, 3, -1, 1),
    Sketcher.Constraint("Coincident", 17, 3, -1, 1),
    Sketcher.Constraint("Coincident", 19, 3, -1, 1),
    Sketcher.Constraint("Coincident", 21, 3, -1, 1),
    Sketcher.Constraint("Coincident", 23, 3, -1, 1),
    Sketcher.Constraint("Equal", 1, 5),
    Sketcher.Constraint("Equal", 3, 7),
    Sketcher.Constraint("Equal", 5, 9),
    Sketcher.Constraint("Equal", 7, 11),
    Sketcher.Constraint("Equal", 9, 13),
    Sketcher.Constraint("Equal", 11, 15),
    Sketcher.Constraint("Equal", 13, 17),
    Sketcher.Constraint("Equal", 15, 19),
    Sketcher.Constraint("Equal", 17, 21),
    Sketcher.Constraint("Equal", 19, 23),
    Sketcher.Constraint("Parallel", 0, 12),
    Sketcher.Constraint("Parallel", 2, 14),
    Sketcher.Constraint("Parallel", 4, 16),
    Sketcher.Constraint("Parallel", 6, 18),
    Sketcher.Constraint("Parallel", 8, 20),
    Sketcher.Constraint("Parallel", 10, 22),
    Sketcher.Constraint("Horizontal", 9, 1, 12, 2),
    Sketcher.Constraint("Horizontal", 8, 2, 13, 1),
    Sketcher.Constraint("Horizontal", 11, 2, 14, 2),
    Sketcher.Constraint("Horizontal", 10, 2, 15, 2),
    Sketcher.Constraint("Horizontal", 5, 1, 16, 2),
    Sketcher.Constraint("Horizontal", 4, 2, 17, 1),
    Sketcher.Constraint("Horizontal", 7, 2, 18, 2),
    Sketcher.Constraint("Horizontal", 1, 1, 20, 2),
    Sketcher.Constraint("Horizontal", 0, 2, 21, 1),
    Sketcher.Constraint("Vertical", 4, 2, 5, 1),
    Sketcher.Constraint("Vertical", 1, 1, 8, 2),
    Sketcher.Constraint("Vertical", 0, 2, 9, 1),
    Sketcher.Constraint("Equal", 0, 2),
    Sketcher.Constraint("Equal", 2, 4),
    Sketcher.Constraint("DistanceY", 5, 1, 4, 2, Q("1 in")),
    Sketcher.Constraint("DistanceY", 1, 1, 0, 2, Q("0.5 in")),
    Sketcher.Constraint("Radius", 1, 65.5875),
    Sketcher.Constraint("Radius", 3, 70.35),
    Sketcher.Constraint("DistanceX", 12, 2, 11, 2, 61.8198),
    Sketcher.Constraint("Distance", 0, 8.432209),
])
pad4 = body.newObject("PartDesign::Pad", "Pad003")
pad4.Profile = sketch6
pad4.Length = Q("0.23 in")
doc.recompute()

fillet3 = body.newObject("PartDesign::Fillet", "Fillet002")
fillet3.Base = (pad4, edges_at(pad4, [
    (29.405, 63.91, 2.921),
    (40.645, 57.42, 2.921),
    (43.172, 49.375, 2.921),
    (21.175, 62.075, 2.921),
    (70.05, 6.49, 2.921),
    (70.05, -6.49, 2.921),
    (64.346, -12.7, 2.921),
    (64.346, 12.7, 2.921),
    (40.645, -57.42, 2.921),
    (29.405, -63.91, 2.921),
    (21.175, -62.075, 2.921),
    (43.172, -49.375, 2.921),
    (-29.405, -63.91, 2.921),
    (-40.645, -57.42, 2.921),
    (-43.172, -49.375, 2.921),
    (-21.175, -62.075, 2.921),
    (-70.05, -6.49, 2.921),
    (-70.05, 6.49, 2.921),
    (-64.346, 12.7, 2.921),
    (-64.346, -12.7, 2.921),
    (-40.645, 57.42, 2.921),
    (-29.405, 63.91, 2.921),
    (-21.175, 62.075, 2.921),
    (-43.172, 49.375, 2.921),
]))
fillet3.Radius = Q("0.125 in")

doc.recompute()
